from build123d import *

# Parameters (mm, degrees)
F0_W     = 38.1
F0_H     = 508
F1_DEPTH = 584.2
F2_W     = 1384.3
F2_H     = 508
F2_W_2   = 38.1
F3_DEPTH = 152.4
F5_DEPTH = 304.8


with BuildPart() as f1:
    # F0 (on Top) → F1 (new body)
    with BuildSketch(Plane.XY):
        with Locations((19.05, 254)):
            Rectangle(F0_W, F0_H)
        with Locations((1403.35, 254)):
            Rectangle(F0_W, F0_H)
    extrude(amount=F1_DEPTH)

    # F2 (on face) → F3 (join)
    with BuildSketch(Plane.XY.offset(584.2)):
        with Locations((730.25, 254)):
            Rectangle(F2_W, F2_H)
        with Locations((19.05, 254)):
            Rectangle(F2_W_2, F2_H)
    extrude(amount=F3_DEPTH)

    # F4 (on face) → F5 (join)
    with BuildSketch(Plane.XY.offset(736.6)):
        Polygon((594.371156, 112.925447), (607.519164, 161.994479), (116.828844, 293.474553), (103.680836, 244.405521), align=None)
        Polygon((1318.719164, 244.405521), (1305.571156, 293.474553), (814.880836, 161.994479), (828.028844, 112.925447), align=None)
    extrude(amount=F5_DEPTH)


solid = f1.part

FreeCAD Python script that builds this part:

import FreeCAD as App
import Part
import Sketcher

V = App.Vector
Q = App.Units.Quantity

doc = App.newDocument("Part")
params = doc.addObject("Spreadsheet::Sheet", "Params")
for row, (alias, value) in enumerate([
    ("sketch1_height", "20 in"),
    ("sketch1_width", "1.5 in"),
    ("pad1_length", "23 in"),
    ("sketch2_width", "56 in"),
    ("sketch2_height", "20 in"),
    ("pad2_length", "6 in"),
    ("sketch3_length", "2 in"),
    ("sketch3_length2", "20 in"),
    ("pad3_length", "12 in"),
], start=1):
    params.set(f"A{row}", alias)
    params.set(f"B{row}", "=" + value)
    params.setAlias(f"B{row}", alias)

body = doc.addObject("PartDesign::Body", "Body")
body.AllowCompound = True

sketch1 = body.newObject("Sketcher::SketchObject", "Sketch")
sketch1.AttachmentSupport = (doc.getObject("XY_Plane"), [""])
sketch1.MapMode = "FlatFace"
sketch1.addGeometry([
    Part.LineSegment(V(0, 508, 0), V(0, 0, 0)),
    Part.LineSegment(V(0, 0, 0), V(38, 0, 0)),
    Part.LineSegment(V(38, 0, 0), V(38, 508, 0)),
    Part.LineSegment(V(38, 508, 0), V(0, 508, 0)),
    Part.LineSegment(V(1384, 508, 0), V(1384, 0, 0)),
    Part.LineSegment(V(1384, 0, 0), V(1422, 0, 0)),
    Part.LineSegment(V(1422, 0, 0), V(1422, 508, 0)),
    Part.LineSegment(V(1422, 508, 0), V(1384, 508, 0)),
], False)
sketch1.addConstraint([
    Sketcher.Constraint("Coincident", 0, 2, 1, 1),
    Sketcher.Constraint("Coincident", 1, 2, 2, 1),
    Sketcher.Constraint("Coincident", 2, 2, 3, 1),
    Sketcher.Constraint("Coincident", 3, 2, 0, 1),
    Sketcher.Constraint("Coincident", 4, 2, 5, 1),
    Sketcher.Constraint("Coincident", 5, 2, 6, 1),
    Sketcher.Constraint("Coincident", 6, 2, 7, 1),
    Sketcher.Constraint("Coincident", 7, 2, 4, 1),
    Sketcher.Constraint("Vertical", 0),
    Sketcher.Constraint("Horizontal", 1),
    Sketcher.Constraint("Vertical", 2),
    Sketcher.Constraint("Horizontal", 3),
    Sketcher.Constraint("Vertical", 4),
    Sketcher.Constraint("Horizontal", 5),
    Sketcher.Constraint("Vertical", 6),
    Sketcher.Constraint("Horizontal", 7),
    Sketcher.Constraint("Coincident", 0, 2, -1, 1),
    Sketcher.Constraint("PointOnObject", 4, 2, -1),
    Sketcher.Constraint("Horizontal", 3, 2, 6, 2),
    Sketcher.Constraint("Equal", 3, 5),
    Sketcher.Constraint("DistanceY", 0, 2, 0, 1, Q("20 in")),
    Sketcher.Constraint("DistanceX", 1, 1, 1, 2, Q("1.5 in")),
    Sketcher.Constraint("DistanceX", -1, 1, 5, 2, Q("56 in")),
])
sketch1.setExpression("Constraints[20]", "Params.sketch1_height")
sketch1.setExpression("Constraints[21]", "Params.sketch1_width")
pad1 = body.newObject("PartDesign::Pad", "Pad")
pad1.Profile = sketch1
pad1.setExpression("Length", "Params.pad1_length")

sketch2 = body.newObject("Sketcher::SketchObject", "Sketch001")
sketch2.AttachmentSupport = (doc.getObject("XY_Plane"), [""])
sketch2.MapMode = "FlatFace"
sketch2.AttachmentOffset = App.Placement(V(0, 0, 23 * 25.4), App.Rotation())
sketch2.addGeometry([
    Part.LineSegment(V(1422, 0, 0), V(1422, 508, 0)),
    Part.LineSegment(V(1422, 508, 0), V(0, 508, 0)),
    Part.LineSegment(V(0, 508, 0), V(0, 0, 0)),
    Part.LineSegment(V(0, 0, 0), V(1422, 0, 0)),
], False)
sketch2.addConstraint([
    Sketcher.Constraint("Coincident", 0, 2, 1, 1),
    Sketcher.Constraint("Coincident", 1, 2, 2, 1),
    Sketcher.Constraint("Coincident", 2, 2, 3, 1),
    Sketcher.Constraint("Coincident", 3, 2, 0, 1),
    Sketcher.Constraint("Vertical", 0),
    Sketcher.Constraint("Horizontal", 1),
    Sketcher.Constraint("Vertical", 2),
    Sketcher.Constraint("Horizontal", 3),
    Sketcher.Constraint("Coincident", 2, 2, -1, 1),
    Sketcher.Constraint("DistanceX", 1, 2, 1, 1, Q("56 in")),
    Sketcher.Constraint("DistanceY", 0, 1, 0, 2, Q("20 in")),
])
sketch2.setExpression("Constraints[9]", "Params.sketch2_width")
sketch2.setExpression("Constraints[10]", "Params.sketch2_height")
pad2 = body.newObject("PartDesign::Pad", "Pad001")
pad2.Profile = sketch2
pad2.setExpression("Length", "Params.pad2_length")

sketch3 = body.newObject("Sketcher::SketchObject", "Sketch002")
sketch3.AttachmentSupport = (doc.getObject("XY_Plane"), [""])
sketch3.MapMode = "FlatFace"
sketch3.AttachmentOffset = App.Placement(V(0, 0, 29 * 25.4), App.Rotation())
sketch3.addGeometry([
    Part.LineSegment(V(594, 113, 0), V(608, 162, 0)),
    Part.LineSegment(V(608, 162, 0), V(117, 293, 0)),
    Part.LineSegment(V(117, 293, 0), V(104, 244, 0)),
    Part.LineSegment(V(104, 244, 0), V(594, 113, 0)),
    Part.LineSegment(V(1319, 244, 0), V(1306, 293, 0)),
    Part.LineSegment(V(1306, 293, 0), V(815, 162, 0)),
    Part.LineSegment(V(815, 162, 0), V(828, 113, 0)),
    Part.LineSegment(V(828, 113, 0), V(1319, 244, 0)),
], False)
sketch3.addConstraint([
    Sketcher.Constraint("Coincident", 0, 2, 1, 1),
    Sketcher.Constraint("Coincident", 1, 2, 2, 1),
    Sketcher.Constraint("Coincident", 2, 2, 3, 1),
    Sketcher.Constraint("Coincident", 3, 2, 0, 1),
    Sketcher.Constraint("Coincident", 4, 2, 5, 1),
    Sketcher.Constraint("Coincident", 5, 2, 6, 1),
    Sketcher.Constraint("Coincident", 6, 2, 7, 1),
    Sketcher.Constraint("Coincident", 7, 2, 4, 1),
    Sketcher.Constraint("Perpendicular", 0, 1),
    Sketcher.Constraint("Perpendicular", 1, 2),
    Sketcher.Constraint("Perpendicular", 2, 3),
    Sketcher.Constraint("Perpendicular", 4, 5),
    Sketcher.Constraint("Perpendicular", 5, 6),
    Sketcher.Constraint("Perpendicular", 6, 7),
    Sketcher.Constraint("Horizontal", 1, 2, 4, 2),
    Sketcher.Constraint("Horizontal", 0, 2, 5, 2),
    Sketcher.Constraint("Horizontal", 3, 2, 6, 2),
    Sketcher.Constraint("Equal", 2, 4),
    Sketcher.Constraint("Distance", 0, Q("2 in")),
    Sketcher.Constraint("Distance", 1, Q("20 in")),
    Sketcher.Constraint("Angle", 0, Q("74.999999 deg")),
    Sketcher.Constraint("DistanceX", 3, 2, 4, 2, Q("28 in")),
    Sketcher.Constraint("DistanceY", -1, 1, 0, 2, Q("161.994479 mm")),
    Sketcher.Constraint("DistanceX", -1, 1, 0, 2, Q("607.519164 mm")),
])
sketch3.setExpression("Constraints[18]", "Params.sketch3_length")
sketch3.setExpression("Constraints[19]", "Params.sketch3_length2")
pad3 = body.newObject("PartDesign::Pad", "Pad002")
pad3.Profile = sketch3
pad3.setExpression("Length", "Params.pad3_length")

doc.recompute()
